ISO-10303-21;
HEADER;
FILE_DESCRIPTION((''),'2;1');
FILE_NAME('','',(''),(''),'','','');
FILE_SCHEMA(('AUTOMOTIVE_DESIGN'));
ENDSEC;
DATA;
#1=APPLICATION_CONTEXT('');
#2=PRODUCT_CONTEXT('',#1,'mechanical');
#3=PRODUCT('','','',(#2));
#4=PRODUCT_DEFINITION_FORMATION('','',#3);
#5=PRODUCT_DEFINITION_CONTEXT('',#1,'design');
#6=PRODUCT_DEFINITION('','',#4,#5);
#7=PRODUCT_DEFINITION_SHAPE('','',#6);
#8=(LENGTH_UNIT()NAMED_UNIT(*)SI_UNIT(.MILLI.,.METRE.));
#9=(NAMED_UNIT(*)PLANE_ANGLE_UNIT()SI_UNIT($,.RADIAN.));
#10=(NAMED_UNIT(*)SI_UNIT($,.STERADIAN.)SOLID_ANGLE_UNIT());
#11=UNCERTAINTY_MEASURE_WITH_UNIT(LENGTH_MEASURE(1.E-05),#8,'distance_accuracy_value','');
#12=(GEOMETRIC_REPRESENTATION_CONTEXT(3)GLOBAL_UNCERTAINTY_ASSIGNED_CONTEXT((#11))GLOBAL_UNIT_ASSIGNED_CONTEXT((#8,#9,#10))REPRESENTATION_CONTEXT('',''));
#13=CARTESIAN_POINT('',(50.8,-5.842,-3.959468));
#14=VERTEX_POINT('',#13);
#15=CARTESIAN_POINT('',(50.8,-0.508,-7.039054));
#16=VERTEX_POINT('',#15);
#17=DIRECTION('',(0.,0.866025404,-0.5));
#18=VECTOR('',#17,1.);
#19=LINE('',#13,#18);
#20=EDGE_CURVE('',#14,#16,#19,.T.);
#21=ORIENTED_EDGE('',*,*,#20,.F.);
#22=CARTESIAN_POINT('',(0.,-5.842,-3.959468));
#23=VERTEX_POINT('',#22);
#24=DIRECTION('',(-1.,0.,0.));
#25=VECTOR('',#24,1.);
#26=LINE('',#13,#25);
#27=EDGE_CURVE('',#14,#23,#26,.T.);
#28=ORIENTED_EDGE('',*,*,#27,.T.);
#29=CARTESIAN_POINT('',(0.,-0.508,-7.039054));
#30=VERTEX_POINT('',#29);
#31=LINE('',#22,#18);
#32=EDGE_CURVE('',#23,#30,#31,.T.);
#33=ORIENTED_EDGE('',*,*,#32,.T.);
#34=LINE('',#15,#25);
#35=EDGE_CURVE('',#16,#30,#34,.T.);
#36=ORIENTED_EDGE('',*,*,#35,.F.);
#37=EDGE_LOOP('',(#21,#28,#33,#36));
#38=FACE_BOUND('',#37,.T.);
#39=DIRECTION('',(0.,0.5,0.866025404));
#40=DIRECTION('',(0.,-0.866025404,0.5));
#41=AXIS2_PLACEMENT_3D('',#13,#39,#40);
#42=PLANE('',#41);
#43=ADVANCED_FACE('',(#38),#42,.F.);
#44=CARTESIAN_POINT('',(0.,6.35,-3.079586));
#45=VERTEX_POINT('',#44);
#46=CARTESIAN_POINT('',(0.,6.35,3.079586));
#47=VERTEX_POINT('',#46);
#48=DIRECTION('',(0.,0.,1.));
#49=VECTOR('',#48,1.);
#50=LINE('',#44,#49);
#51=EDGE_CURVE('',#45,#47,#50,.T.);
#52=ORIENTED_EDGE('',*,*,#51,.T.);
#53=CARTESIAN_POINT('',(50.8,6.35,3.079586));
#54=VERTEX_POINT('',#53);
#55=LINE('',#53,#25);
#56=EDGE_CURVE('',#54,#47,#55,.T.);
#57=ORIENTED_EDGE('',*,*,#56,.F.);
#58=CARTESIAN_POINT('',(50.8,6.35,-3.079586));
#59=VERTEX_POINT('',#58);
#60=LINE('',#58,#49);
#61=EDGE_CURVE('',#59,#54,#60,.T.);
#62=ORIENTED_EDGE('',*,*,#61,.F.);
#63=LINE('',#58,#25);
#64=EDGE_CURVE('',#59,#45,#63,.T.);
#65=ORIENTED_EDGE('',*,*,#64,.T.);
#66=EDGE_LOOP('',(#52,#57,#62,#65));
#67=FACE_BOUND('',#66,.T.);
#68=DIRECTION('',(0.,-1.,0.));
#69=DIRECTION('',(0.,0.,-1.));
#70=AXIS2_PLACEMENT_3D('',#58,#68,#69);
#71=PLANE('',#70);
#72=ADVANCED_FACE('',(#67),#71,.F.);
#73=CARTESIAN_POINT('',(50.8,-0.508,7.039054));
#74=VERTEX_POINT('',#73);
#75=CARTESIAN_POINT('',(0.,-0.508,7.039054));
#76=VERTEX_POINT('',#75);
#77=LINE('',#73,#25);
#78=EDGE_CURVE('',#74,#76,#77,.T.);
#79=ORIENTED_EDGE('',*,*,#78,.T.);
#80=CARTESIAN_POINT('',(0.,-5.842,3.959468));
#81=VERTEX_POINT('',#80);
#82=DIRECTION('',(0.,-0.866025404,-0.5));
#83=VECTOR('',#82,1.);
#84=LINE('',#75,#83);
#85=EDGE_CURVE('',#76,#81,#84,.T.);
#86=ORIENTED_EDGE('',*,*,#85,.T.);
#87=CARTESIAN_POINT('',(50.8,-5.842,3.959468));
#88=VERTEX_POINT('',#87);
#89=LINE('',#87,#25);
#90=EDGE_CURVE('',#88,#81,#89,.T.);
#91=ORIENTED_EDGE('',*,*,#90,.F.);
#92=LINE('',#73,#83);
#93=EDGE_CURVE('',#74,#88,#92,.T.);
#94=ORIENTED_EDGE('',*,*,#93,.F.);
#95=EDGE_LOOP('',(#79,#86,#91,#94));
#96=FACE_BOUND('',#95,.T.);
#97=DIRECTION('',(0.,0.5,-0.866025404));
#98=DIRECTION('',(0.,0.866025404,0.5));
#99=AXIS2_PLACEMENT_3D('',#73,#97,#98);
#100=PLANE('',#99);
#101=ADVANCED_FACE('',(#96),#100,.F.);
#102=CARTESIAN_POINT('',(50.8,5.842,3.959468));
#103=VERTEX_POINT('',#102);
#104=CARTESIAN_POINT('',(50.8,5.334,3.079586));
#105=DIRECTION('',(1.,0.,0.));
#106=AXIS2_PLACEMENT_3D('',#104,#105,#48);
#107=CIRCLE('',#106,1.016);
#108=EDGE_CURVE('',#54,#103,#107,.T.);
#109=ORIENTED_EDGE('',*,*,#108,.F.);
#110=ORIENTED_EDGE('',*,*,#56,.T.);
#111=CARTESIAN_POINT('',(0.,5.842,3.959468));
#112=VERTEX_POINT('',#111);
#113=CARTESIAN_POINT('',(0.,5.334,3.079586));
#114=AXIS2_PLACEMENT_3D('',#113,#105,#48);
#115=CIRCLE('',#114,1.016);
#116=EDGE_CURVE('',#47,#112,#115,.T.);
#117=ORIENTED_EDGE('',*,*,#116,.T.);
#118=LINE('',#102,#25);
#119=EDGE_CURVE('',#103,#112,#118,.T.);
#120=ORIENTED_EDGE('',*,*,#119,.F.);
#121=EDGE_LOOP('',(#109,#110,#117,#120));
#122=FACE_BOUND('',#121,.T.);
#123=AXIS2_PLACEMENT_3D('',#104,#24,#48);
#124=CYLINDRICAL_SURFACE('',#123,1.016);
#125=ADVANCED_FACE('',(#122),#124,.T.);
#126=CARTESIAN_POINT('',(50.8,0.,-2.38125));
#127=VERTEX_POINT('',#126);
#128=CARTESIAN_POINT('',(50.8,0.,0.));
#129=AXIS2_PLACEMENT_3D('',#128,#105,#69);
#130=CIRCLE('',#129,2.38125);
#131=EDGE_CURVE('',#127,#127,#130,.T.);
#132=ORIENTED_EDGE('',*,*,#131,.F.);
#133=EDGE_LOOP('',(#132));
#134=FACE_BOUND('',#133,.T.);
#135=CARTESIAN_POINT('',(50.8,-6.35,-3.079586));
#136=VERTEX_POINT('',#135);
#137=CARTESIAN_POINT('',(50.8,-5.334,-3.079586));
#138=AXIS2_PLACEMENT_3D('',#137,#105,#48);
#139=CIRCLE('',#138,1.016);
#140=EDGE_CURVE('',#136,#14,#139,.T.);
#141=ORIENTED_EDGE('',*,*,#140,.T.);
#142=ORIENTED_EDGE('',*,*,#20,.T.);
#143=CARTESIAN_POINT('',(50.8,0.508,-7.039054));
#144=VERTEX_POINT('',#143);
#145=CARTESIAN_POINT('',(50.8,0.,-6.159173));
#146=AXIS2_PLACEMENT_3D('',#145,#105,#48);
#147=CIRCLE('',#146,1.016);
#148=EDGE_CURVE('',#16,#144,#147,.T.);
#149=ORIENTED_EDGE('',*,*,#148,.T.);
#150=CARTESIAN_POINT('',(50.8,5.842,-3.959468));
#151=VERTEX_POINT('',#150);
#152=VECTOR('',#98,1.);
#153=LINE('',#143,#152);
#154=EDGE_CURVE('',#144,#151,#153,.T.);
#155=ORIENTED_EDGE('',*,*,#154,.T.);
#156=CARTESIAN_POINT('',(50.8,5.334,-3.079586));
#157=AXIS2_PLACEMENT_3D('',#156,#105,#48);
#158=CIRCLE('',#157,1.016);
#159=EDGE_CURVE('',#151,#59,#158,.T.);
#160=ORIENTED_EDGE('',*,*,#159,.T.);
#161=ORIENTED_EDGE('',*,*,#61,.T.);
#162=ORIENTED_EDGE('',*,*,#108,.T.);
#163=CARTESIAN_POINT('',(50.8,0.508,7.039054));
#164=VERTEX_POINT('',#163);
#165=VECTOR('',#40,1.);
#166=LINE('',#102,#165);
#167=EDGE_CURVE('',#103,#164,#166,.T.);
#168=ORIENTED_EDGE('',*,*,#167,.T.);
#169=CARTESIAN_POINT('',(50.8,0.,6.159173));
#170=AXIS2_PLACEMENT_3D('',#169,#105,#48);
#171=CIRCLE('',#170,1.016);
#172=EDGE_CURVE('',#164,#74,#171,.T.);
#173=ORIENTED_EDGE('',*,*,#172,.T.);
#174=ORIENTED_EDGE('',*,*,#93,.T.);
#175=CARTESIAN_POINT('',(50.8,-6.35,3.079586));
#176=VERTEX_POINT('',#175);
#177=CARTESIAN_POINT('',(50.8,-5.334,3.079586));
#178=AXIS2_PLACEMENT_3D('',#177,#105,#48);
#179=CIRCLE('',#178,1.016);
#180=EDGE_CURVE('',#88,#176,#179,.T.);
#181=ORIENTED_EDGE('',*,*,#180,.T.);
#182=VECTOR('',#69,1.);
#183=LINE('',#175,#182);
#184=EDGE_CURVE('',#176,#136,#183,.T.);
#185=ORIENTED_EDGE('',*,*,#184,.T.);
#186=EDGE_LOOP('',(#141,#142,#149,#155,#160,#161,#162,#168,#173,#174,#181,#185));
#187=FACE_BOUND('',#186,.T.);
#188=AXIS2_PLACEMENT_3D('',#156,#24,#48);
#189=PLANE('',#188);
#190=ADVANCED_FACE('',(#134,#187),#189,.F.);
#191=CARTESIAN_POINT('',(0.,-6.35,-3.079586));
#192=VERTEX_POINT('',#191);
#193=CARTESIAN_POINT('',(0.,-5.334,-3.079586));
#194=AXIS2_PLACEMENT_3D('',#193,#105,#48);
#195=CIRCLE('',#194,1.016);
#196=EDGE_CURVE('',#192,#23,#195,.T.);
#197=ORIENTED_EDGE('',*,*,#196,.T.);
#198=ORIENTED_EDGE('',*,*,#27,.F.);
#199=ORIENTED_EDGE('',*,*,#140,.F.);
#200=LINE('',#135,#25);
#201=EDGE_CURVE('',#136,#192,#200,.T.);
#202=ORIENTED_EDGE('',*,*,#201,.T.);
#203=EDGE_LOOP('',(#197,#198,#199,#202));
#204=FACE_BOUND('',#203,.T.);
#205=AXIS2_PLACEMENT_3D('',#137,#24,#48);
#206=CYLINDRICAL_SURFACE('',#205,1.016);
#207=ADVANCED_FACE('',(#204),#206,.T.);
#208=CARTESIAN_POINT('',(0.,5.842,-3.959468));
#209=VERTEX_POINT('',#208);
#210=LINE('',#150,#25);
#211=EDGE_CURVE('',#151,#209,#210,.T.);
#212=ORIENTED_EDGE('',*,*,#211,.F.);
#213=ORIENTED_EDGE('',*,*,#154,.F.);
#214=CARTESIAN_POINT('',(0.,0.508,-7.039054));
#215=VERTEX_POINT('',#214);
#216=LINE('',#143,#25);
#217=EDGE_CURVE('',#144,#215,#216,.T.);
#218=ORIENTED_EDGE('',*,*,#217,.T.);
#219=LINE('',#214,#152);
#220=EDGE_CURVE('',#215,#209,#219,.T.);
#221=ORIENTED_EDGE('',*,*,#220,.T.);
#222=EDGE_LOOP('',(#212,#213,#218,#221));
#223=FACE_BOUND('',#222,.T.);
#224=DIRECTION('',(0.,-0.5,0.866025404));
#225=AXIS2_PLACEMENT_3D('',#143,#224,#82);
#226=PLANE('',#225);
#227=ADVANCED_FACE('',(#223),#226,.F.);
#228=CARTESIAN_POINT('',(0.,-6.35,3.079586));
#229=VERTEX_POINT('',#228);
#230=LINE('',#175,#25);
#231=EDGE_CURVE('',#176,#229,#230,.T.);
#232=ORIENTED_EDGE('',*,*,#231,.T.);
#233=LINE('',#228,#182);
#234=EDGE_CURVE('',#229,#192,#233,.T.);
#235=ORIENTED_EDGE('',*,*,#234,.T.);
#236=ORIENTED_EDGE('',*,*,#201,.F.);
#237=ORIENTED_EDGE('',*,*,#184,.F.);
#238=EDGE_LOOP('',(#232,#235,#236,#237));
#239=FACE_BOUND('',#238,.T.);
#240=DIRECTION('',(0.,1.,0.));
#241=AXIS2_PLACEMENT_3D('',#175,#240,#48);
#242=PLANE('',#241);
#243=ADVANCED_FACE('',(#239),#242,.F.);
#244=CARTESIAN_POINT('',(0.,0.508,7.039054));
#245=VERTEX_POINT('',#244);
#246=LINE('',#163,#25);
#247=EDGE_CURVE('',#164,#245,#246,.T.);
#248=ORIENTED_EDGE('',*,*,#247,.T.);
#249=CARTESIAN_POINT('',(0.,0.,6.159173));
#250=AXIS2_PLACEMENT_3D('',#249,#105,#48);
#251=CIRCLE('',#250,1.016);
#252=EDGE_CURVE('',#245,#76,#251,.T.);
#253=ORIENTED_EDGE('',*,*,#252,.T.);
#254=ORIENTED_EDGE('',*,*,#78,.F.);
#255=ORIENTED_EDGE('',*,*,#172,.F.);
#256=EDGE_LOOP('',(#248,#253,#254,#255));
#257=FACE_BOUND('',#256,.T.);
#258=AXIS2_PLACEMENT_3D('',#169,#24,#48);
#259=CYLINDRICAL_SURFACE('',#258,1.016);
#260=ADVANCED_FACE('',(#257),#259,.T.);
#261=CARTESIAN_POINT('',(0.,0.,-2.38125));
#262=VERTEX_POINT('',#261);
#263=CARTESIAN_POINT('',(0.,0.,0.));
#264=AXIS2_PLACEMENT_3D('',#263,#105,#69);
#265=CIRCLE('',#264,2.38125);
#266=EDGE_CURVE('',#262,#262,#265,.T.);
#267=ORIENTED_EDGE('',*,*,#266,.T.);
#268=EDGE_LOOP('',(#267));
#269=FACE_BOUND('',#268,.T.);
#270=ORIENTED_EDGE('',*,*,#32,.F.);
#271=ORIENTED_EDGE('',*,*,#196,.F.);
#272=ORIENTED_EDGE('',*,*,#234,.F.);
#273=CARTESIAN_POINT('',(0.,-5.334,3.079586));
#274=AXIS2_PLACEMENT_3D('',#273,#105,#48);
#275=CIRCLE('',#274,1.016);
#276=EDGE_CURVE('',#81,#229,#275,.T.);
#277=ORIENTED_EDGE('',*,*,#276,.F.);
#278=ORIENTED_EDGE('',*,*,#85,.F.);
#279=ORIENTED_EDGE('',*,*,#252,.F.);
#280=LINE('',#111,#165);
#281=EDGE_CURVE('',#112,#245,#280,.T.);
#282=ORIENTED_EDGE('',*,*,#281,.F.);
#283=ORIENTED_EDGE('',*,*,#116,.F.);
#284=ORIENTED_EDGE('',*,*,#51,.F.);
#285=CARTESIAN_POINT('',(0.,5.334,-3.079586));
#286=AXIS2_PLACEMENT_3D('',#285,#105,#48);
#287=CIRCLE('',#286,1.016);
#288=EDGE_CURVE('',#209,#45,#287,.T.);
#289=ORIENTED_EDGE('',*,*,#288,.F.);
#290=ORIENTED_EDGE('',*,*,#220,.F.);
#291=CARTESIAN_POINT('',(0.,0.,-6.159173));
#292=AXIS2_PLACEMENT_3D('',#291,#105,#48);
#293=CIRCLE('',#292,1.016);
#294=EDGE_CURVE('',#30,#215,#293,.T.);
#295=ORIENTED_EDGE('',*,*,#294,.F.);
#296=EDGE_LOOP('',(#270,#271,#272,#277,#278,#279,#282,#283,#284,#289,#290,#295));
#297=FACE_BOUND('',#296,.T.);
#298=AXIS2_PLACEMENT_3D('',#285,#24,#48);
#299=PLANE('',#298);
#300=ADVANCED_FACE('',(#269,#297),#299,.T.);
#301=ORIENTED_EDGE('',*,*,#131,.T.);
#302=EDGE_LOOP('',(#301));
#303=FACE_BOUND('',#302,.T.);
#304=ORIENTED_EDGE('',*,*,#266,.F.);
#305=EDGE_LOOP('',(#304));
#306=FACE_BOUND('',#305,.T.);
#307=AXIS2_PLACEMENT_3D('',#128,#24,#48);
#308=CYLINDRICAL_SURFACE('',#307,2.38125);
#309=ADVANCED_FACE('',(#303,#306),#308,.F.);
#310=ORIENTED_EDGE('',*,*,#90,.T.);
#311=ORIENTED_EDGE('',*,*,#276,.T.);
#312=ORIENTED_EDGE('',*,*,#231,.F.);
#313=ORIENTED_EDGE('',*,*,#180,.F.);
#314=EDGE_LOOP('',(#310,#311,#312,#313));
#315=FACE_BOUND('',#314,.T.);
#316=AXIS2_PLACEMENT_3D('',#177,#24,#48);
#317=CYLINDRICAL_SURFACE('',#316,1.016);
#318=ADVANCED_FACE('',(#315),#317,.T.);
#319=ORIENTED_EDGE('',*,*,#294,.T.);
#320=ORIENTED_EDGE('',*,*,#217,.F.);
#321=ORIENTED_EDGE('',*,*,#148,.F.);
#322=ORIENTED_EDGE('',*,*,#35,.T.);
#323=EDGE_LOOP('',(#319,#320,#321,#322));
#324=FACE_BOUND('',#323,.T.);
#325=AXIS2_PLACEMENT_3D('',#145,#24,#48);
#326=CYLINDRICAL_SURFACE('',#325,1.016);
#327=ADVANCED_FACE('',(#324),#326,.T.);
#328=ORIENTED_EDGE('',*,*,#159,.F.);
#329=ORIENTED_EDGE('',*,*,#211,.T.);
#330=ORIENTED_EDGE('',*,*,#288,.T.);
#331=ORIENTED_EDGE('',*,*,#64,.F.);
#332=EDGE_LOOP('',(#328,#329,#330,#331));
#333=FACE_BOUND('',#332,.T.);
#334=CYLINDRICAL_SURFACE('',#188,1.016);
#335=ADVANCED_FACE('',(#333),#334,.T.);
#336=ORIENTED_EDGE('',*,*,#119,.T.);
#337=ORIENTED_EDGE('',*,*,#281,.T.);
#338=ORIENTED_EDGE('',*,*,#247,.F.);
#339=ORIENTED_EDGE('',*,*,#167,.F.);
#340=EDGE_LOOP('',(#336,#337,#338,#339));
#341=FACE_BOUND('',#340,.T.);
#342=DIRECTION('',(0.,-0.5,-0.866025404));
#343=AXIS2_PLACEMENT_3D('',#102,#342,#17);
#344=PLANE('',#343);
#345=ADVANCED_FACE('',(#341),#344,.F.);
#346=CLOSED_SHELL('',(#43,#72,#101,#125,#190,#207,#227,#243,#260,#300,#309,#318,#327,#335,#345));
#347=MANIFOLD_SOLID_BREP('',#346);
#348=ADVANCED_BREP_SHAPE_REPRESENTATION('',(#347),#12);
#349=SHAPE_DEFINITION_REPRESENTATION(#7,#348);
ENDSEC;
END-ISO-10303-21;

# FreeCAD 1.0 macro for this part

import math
import FreeCAD as App
import Part
import Sketcher

V = App.Vector
Q = App.Units.Quantity

doc = App.newDocument("Part")
body = doc.addObject("PartDesign::Body", "Body")

# Sketch on YZ plane
sketch1 = doc.addObject("Sketcher::SketchObject", "Sketch")
body.addObject(sketch1)
sketch1.AttachmentSupport = (doc.YZ_Plane, [""])
sketch1.MapMode = "FlatFace"
sketch1.addGeometry(Part.LineSegment(V(0.5, -7, 0), V(5.8, -4, 0)), False)
sketch1.addGeometry(Part.ArcOfCircle(Part.Circle(V(5.3, -3.1, 0), V(0, 0, 1), 1), math.radians(-60), math.radians(0)), False)
sketch1.addGeometry(Part.LineSegment(V(6.3, -3.1, 0), V(6.3, 3.1, 0)), False)
sketch1.addGeometry(Part.ArcOfCircle(Part.Circle(V(5.3, 3.1, 0), V(0, 0, 1), 1), math.radians(0), math.radians(60)), False)
sketch1.addGeometry(Part.LineSegment(V(5.8, 4, 0), V(0.5, 7, 0)), False)
sketch1.addGeometry(Part.ArcOfCircle(Part.Circle(V(0, 6.2, 0), V(0, 0, 1), 1), math.radians(60), math.radians(120)), False)
sketch1.addGeometry(Part.LineSegment(V(-0.5, 7, 0), V(-5.8, 4, 0)), False)
sketch1.addGeometry(Part.ArcOfCircle(Part.Circle(V(-5.3, 3.1, 0), V(0, 0, 1), 1), math.radians(120), math.radians(180)), False)
sketch1.addGeometry(Part.LineSegment(V(-6.3, 3.1, 0), V(-6.3, -3.1, 0)), False)
sketch1.addGeometry(Part.ArcOfCircle(Part.Circle(V(-5.3, -3.1, 0), V(0, 0, 1), 1), math.radians(-180), math.radians(-120)), False)
sketch1.addGeometry(Part.LineSegment(V(-5.8, -4, 0), V(-0.5, -7, 0)), False)
sketch1.addGeometry(Part.ArcOfCircle(Part.Circle(V(0, -6.2, 0), V(0, 0, 1), 1), math.radians(-120), math.radians(-60)), False)
sketch1.addGeometry(Part.Circle(V(0, 0, 0), V(0, 0, 1), 2.4), False)
sketch1.addConstraint(Sketcher.Constraint("Tangent", 0, 2, 1, 1))
sketch1.addConstraint(Sketcher.Constraint("Tangent", 1, 2, 2, 1))
sketch1.addConstraint(Sketcher.Constraint("Tangent", 2, 2, 3, 1))
sketch1.addConstraint(Sketcher.Constraint("Tangent", 3, 2, 4, 1))
sketch1.addConstraint(Sketcher.Constraint("Tangent", 4, 2, 5, 1))
sketch1.addConstraint(Sketcher.Constraint("Tangent", 5, 2, 6, 1))
sketch1.addConstraint(Sketcher.Constraint("Tangent", 6, 2, 7, 1))
sketch1.addConstraint(Sketcher.Constraint("Tangent", 7, 2, 8, 1))
sketch1.addConstraint(Sketcher.Constraint("Tangent", 8, 2, 9, 1))
sketch1.addConstraint(Sketcher.Constraint("Tangent", 9, 2, 10, 1))
sketch1.addConstraint(Sketcher.Constraint("Tangent", 10, 2, 11, 1))
sketch1.addConstraint(Sketcher.Constraint("Tangent", 11, 2, 0, 1))
sketch1.addConstraint(Sketcher.Constraint("Vertical", 2))
sketch1.addConstraint(Sketcher.Constraint("Vertical", 8))
sketch1.addConstraint(Sketcher.Constraint("Coincident", 12, 3, -1, 1))
sketch1.addConstraint(Sketcher.Constraint("Equal", 1, 3))
sketch1.addConstraint(Sketcher.Constraint("Equal", 3, 5))
sketch1.addConstraint(Sketcher.Constraint("Equal", 5, 7))
sketch1.addConstraint(Sketcher.Constraint("Equal", 7, 9))
sketch1.addConstraint(Sketcher.Constraint("Equal", 9, 11))
sketch1.addConstraint(Sketcher.Constraint("Symmetric", 1, 3, 7, 3, -1, 1))
sketch1.addConstraint(Sketcher.Constraint("Symmetric", 5, 3, 11, 3, -1, 1))
sketch1.addConstraint(Sketcher.Constraint("Symmetric", 4, 2, 5, 2, -2))
sketch1.addConstraint(Sketcher.Constraint("Parallel", 4, 10))
sketch1.addConstraint(Sketcher.Constraint("Radius", 1, Q("0.04 in")))
sketch1.addConstraint(Sketcher.Constraint("Diameter", 12, Q("0.1875 in")))
sketch1.addConstraint(Sketcher.Constraint("Angle", 0, Q("30 deg")))
sketch1.addConstraint(Sketcher.Constraint("DistanceX", -1, 1, 1, 3, Q("0.21 in")))
sketch1.addConstraint(Sketcher.Constraint("DistanceY", 2, 1, 2, 2, 6.159173))
pad1 = doc.addObject("PartDesign::Pad", "Pad")
body.addObject(pad1)
pad1.Profile = sketch1
pad1.Length = Q("2 in")

doc.recompute()
